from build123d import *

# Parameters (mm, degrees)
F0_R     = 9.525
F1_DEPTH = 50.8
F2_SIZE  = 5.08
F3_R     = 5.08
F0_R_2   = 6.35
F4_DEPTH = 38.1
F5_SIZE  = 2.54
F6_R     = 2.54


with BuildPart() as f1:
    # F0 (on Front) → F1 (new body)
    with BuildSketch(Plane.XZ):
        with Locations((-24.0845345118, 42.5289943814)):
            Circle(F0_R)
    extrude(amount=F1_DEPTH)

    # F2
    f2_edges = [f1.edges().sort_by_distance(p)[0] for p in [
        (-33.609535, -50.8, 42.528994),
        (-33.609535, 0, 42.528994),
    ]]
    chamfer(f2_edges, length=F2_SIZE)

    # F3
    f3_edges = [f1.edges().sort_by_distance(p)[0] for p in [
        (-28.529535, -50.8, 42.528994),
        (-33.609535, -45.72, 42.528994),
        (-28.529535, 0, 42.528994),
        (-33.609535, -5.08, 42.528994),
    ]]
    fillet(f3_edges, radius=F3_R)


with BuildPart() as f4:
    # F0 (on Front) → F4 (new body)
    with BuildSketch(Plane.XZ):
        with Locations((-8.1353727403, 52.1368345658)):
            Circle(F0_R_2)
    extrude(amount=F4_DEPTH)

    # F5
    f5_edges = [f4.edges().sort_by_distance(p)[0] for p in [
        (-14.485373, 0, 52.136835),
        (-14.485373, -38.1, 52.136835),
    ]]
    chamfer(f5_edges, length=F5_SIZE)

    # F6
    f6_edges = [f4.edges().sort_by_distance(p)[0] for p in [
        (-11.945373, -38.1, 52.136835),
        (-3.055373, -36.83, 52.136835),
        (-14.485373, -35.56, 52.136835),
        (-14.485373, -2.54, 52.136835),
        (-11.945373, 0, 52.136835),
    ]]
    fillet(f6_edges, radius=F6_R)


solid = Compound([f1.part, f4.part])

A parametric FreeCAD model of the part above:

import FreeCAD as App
import Part
import Sketcher
Q = App.Units.Quantity


def edges_at(feature, points):
    """Names of the edges that pass closest to the given points."""
    edges = feature.Shape.Edges
    near = lambda p: min(range(len(edges)), key=lambda i: edges[i].distToShape(Part.Vertex(*p))[0])
    return sorted({f"Edge{near(p) + 1}" for p in points})

doc = App.newDocument("Part")
params = doc.addObject("Spreadsheet::Sheet", "Params")
for row, (alias, value) in enumerate([
    ("sketch1_diameter", "0.75 in"),
    ("pad1_length", "2 in"),
    ("chamfer_size", "0.2 in"),
    ("fillet_radius", "0.2 in"),
    ("sketch2_diameter", "0.5 in"),
    ("pad2_length", "1.5 in"),
    ("chamfer2_size", "0.1 in"),
    ("fillet2_radius", "0.1 in"),
], start=1):
    params.set(f"A{row}", alias)
    params.set(f"B{row}", "=" + value)
    params.setAlias(f"B{row}", alias)

body = doc.addObject("PartDesign::Body", "Body")

# Sketch on XZ plane
sketch1 = body.newObject("Sketcher::SketchObject", "Sketch")
sketch1.AttachmentSupport = (doc.getObject("XZ_Plane"), [""])
sketch1.MapMode = "FlatFace"
sketch1.addGeometry(Part.Circle(App.Vector(-24, 43, 0), App.Vector(0, 0, 1), 10), False)
sketch1.addConstraint([
    Sketcher.Constraint("Diameter", 0, Q("0.75 in")),
    Sketcher.Constraint("DistanceX", 0, 3, -1, 1, 24.084535),
    Sketcher.Constraint("DistanceY", -1, 1, 0, 3, 42.528994),
])
sketch1.setExpression("Constraints[0]", "Params.sketch1_diameter")
pad1 = body.newObject("PartDesign::Pad", "Pad")
pad1.Profile = sketch1
pad1.setExpression("Length", "Params.pad1_length")
doc.recompute()

chamfer = body.newObject("PartDesign::Chamfer", "Chamfer")
chamfer.Base = (pad1, edges_at(pad1, [(-33.61, -50.8, 42.529), (-33.61, 0, 42.529)]))
chamfer.setExpression("Size", "Params.chamfer_size")
doc.recompute()

fillet = body.newObject("PartDesign::Fillet", "Fillet")
fillet.Base = (chamfer, edges_at(chamfer, [
    (-28.53, -50.8, 42.529),
    (-33.61, -45.72, 42.529),
    (-28.53, 0, 42.529),
    (-33.61, -5.08, 42.529),
]))
fillet.setExpression("Radius", "Params.fillet_radius")
body2 = doc.addObject("PartDesign::Body", "Body001")

# Sketch on XZ plane
sketch2 = body2.newObject("Sketcher::SketchObject", "Sketch001")
sketch2.AttachmentSupport = (doc.getObject("XZ_Plane001"), [""])
sketch2.MapMode = "FlatFace"
sketch2.addGeometry(Part.Circle(App.Vector(-8, 52, 0), App.Vector(0, 0, 1), 6), False)
sketch2.addConstraint([
    Sketcher.Constraint("Diameter", 0, Q("0.5 in")),
    Sketcher.Constraint("DistanceX", 0, 3, -1, 1, 8.135373),
    Sketcher.Constraint("DistanceY", -1, 1, 0, 3, 52.136835),
])
sketch2.setExpression("Constraints[0]", "Params.sketch2_diameter")
pad2 = body2.newObject("PartDesign::Pad", "Pad001")
pad2.Profile = sketch2
pad2.setExpression("Length", "Params.pad2_length")
doc.recompute()

chamfer2 = body2.newObject("PartDesign::Chamfer", "Chamfer001")
chamfer2.Base = (pad2, edges_at(pad2, [(-14.485, 0, 52.137), (-14.485, -38.1, 52.137)]))
chamfer2.setExpression("Size", "Params.chamfer2_size")
doc.recompute()

fillet2 = body2.newObject("PartDesign::Fillet", "Fillet001")
fillet2.Base = (chamfer2, ["Edge1"])
fillet2.UseAllEdges = True
fillet2.setExpression("Radius", "Params.fillet2_radius")

doc.recompute()
